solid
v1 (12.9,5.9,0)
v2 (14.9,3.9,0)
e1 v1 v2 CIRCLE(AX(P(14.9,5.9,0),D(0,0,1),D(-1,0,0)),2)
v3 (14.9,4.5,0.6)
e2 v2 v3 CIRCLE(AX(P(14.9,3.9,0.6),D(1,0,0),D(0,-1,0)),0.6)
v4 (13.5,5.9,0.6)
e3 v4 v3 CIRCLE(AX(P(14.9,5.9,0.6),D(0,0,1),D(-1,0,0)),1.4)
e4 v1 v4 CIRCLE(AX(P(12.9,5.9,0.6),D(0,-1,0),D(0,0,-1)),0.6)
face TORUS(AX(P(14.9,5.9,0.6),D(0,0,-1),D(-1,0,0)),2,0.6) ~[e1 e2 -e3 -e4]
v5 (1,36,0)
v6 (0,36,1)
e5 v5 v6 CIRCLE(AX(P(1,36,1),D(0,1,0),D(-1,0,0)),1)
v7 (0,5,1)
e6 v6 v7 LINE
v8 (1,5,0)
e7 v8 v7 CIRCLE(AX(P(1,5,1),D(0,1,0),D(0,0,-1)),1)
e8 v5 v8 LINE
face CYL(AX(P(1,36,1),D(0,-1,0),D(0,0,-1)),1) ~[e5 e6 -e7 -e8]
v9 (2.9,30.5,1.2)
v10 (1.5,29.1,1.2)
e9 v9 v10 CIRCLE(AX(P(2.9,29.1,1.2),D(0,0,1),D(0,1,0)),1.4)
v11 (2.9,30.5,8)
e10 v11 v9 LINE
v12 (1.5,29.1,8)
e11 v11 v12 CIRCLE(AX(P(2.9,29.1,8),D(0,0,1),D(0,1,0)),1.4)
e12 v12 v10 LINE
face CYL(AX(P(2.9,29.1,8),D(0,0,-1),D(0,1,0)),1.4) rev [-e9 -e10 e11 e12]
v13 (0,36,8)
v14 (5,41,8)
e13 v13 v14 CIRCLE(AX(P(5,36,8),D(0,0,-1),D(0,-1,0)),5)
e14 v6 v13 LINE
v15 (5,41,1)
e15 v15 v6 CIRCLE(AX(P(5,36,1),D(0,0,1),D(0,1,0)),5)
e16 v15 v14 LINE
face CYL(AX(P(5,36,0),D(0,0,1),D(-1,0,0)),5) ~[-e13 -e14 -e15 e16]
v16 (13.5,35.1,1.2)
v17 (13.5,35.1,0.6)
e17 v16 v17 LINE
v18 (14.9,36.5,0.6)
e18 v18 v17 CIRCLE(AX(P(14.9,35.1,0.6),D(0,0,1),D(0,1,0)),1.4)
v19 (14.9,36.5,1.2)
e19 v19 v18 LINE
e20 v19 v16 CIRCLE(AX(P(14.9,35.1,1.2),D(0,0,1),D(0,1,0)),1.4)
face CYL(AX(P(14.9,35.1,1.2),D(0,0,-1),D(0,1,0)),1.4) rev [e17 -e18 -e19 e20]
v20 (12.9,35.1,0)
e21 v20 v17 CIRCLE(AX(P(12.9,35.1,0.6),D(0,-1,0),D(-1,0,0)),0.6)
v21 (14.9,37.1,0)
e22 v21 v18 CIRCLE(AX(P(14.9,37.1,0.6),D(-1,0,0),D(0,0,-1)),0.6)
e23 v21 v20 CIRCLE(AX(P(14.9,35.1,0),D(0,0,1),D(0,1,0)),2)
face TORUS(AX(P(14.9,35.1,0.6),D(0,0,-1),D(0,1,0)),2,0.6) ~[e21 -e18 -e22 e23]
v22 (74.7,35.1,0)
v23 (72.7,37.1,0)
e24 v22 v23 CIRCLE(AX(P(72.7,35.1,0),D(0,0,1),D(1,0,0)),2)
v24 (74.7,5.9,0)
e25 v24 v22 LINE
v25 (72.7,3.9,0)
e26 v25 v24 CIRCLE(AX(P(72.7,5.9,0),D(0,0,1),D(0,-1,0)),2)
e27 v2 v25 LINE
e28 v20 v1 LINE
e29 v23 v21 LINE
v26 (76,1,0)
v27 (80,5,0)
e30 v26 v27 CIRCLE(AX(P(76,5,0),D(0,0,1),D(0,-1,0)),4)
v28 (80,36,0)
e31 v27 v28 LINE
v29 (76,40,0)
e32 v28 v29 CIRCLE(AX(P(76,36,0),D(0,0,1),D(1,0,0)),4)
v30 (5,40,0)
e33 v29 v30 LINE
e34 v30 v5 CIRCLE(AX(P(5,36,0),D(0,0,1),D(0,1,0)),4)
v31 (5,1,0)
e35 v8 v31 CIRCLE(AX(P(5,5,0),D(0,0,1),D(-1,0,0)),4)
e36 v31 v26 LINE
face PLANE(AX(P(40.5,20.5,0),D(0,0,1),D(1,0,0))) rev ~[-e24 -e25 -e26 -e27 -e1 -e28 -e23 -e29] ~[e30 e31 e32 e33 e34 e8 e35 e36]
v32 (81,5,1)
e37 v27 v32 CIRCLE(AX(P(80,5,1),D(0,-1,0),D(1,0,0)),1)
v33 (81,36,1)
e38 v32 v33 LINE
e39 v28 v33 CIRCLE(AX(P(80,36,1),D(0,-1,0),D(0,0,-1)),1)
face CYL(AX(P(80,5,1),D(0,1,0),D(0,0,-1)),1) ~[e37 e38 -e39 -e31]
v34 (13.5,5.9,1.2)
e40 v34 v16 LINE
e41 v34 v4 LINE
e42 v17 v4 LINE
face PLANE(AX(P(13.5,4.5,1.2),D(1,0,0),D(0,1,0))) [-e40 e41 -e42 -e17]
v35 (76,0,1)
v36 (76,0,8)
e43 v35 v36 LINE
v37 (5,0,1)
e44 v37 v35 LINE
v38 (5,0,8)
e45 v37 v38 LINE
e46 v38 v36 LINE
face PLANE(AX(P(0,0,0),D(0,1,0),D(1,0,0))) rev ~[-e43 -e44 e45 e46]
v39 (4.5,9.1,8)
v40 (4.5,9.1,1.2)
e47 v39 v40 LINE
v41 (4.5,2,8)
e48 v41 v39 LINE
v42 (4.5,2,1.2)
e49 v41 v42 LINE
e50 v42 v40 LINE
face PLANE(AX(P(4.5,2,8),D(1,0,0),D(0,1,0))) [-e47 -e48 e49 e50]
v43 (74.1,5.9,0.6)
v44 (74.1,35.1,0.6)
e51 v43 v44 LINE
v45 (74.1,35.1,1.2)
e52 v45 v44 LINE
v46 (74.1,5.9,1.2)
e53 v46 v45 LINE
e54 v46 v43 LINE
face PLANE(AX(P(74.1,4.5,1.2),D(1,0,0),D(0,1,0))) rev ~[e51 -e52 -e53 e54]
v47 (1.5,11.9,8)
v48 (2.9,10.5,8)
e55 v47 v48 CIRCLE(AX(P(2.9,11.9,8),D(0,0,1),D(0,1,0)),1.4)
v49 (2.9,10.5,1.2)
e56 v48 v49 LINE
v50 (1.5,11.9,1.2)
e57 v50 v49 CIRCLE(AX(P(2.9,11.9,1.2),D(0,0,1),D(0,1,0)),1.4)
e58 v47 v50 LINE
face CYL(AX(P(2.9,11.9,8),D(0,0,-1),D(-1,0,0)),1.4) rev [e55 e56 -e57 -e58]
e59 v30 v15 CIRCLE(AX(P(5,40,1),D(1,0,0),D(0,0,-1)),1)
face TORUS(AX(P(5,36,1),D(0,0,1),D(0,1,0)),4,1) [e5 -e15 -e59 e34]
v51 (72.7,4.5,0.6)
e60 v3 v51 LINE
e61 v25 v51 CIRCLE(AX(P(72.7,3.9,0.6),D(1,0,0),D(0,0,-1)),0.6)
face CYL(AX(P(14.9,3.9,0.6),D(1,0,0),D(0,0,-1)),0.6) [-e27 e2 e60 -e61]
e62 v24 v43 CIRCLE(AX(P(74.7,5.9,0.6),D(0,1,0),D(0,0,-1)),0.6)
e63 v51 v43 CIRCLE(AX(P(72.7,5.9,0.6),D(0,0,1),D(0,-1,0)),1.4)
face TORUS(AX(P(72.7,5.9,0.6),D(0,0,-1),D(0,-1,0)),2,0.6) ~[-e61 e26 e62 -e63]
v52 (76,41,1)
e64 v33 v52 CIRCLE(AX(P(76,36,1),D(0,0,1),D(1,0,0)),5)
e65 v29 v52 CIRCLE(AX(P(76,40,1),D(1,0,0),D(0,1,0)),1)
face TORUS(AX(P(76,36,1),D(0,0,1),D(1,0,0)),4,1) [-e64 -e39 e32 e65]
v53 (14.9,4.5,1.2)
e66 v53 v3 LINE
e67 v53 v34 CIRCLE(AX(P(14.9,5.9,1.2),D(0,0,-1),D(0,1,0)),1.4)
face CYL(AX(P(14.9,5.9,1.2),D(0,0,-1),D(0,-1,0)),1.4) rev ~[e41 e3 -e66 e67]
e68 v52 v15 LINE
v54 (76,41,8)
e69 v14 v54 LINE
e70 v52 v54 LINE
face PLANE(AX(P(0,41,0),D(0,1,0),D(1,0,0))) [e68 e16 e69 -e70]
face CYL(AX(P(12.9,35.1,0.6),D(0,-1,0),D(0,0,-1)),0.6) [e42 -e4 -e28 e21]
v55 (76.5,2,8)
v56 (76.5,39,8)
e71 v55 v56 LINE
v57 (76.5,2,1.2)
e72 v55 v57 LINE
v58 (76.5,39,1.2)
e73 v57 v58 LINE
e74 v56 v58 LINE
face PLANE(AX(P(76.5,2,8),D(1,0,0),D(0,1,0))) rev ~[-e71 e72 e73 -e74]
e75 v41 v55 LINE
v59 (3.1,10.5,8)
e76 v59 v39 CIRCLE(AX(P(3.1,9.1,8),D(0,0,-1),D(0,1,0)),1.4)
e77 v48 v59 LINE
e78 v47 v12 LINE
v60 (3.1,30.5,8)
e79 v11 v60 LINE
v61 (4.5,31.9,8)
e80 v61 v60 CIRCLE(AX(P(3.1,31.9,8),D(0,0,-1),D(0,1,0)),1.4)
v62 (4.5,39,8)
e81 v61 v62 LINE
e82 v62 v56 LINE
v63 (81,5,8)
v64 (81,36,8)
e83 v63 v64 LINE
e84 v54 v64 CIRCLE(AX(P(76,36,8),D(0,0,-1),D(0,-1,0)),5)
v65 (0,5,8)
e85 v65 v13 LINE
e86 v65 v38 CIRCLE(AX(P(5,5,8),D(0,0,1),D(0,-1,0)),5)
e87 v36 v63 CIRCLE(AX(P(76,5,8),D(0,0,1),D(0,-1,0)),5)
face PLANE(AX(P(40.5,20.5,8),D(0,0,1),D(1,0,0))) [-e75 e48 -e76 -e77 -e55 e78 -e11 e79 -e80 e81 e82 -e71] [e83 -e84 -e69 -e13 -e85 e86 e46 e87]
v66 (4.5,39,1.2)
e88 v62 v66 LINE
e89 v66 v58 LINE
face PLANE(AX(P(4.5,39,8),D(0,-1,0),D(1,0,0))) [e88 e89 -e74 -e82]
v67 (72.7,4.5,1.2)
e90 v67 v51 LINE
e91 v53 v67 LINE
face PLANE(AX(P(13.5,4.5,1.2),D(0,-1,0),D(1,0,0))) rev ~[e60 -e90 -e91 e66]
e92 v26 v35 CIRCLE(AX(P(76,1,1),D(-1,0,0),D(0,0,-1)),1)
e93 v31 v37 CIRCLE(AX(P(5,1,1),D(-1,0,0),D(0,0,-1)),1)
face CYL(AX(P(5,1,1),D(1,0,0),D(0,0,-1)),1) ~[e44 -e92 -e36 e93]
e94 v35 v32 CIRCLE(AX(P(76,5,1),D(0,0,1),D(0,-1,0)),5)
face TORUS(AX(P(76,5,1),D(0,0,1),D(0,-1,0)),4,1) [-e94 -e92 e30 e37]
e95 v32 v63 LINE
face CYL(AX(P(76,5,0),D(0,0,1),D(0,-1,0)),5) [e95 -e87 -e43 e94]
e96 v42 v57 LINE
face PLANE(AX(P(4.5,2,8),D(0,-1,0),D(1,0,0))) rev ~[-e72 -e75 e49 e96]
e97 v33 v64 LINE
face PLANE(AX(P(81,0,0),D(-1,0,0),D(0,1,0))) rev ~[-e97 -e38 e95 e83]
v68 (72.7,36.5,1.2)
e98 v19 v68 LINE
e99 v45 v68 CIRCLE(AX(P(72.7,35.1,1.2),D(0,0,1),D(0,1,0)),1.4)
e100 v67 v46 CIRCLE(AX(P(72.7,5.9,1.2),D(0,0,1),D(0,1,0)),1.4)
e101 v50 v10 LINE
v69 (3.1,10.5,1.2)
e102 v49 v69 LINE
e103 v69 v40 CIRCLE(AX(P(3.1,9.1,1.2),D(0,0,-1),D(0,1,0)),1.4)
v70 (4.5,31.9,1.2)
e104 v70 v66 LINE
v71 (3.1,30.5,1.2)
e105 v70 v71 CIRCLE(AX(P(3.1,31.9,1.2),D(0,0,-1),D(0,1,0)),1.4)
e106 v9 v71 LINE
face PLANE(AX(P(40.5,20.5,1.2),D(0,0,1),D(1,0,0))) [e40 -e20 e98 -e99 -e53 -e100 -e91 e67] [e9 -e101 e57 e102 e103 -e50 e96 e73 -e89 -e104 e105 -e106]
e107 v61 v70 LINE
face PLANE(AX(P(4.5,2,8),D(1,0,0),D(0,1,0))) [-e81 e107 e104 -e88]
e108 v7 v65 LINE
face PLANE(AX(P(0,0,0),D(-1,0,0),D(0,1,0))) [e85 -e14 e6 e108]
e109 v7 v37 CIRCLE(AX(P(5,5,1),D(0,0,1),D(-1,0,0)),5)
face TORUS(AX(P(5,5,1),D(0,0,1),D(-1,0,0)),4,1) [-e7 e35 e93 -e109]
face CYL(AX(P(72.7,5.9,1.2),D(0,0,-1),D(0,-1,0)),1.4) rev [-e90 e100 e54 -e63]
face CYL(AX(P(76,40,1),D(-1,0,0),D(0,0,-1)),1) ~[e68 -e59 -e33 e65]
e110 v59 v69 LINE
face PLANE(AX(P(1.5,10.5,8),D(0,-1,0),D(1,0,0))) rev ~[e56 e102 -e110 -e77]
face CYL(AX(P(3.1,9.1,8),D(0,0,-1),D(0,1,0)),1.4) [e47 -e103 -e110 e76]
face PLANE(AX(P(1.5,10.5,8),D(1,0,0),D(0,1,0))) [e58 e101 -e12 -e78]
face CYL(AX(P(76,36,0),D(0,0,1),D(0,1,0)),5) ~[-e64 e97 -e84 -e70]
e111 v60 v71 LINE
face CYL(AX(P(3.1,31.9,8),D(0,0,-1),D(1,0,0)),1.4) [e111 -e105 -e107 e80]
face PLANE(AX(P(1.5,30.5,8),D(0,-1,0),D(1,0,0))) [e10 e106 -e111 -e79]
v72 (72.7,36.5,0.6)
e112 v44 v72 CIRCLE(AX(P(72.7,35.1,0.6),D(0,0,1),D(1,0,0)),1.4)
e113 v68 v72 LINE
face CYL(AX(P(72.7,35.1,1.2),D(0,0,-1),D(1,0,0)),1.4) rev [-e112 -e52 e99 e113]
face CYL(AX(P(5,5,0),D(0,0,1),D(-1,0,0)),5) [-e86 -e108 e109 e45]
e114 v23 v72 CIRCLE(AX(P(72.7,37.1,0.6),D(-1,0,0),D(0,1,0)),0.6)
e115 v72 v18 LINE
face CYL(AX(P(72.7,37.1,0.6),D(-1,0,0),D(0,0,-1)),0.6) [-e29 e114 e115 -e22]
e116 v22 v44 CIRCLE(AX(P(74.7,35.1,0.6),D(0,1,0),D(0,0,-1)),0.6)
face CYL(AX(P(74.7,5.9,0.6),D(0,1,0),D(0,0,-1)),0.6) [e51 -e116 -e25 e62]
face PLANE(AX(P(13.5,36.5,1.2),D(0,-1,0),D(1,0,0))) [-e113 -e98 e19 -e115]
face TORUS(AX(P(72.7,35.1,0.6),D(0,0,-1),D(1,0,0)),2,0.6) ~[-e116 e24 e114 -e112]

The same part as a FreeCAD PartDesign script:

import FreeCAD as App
import Part
import Sketcher

V = App.Vector


def edges_at(feature, points):
    """Names of the edges that pass closest to the given points."""
    edges = feature.Shape.Edges
    near = lambda p: min(range(len(edges)), key=lambda i: edges[i].distToShape(Part.Vertex(*p))[0])
    return sorted({f"Edge{near(p) + 1}" for p in points})


def add_polygon(sketch, points):
    """Adds a closed chain of lines whose ends are joined by coincident constraints."""
    first, n = sketch.GeometryCount, len(points)
    for a, b in zip(points, points[1:] + points[:1]):
        sketch.addGeometry(Part.LineSegment(App.Vector(*a, 0), App.Vector(*b, 0)), False)
    for i in range(n):
        sketch.addConstraint(Sketcher.Constraint("Coincident", first + i, 2, first + (i + 1) % n, 1))

doc = App.newDocument("Part")
body = doc.addObject("PartDesign::Body", "Body")

# Sketch on XY plane
sketch1 = body.newObject("Sketcher::SketchObject", "Sketch")
sketch1.AttachmentSupport = (doc.getObject("XY_Plane"), [""])
sketch1.MapMode = "FlatFace"
add_polygon(sketch1, [(0, 41), (0, 0), (81, 0), (81, 41)])  # lines 0-3
sketch1.addConstraint([
    Sketcher.Constraint("Vertical", 0),
    Sketcher.Constraint("Horizontal", 1),
    Sketcher.Constraint("Vertical", 2),
    Sketcher.Constraint("Horizontal", 3),
    Sketcher.Constraint("Coincident", 0, 2, -1, 1),
    Sketcher.Constraint("DistanceX", 1, 1, 1, 2, 81.0),
    Sketcher.Constraint("DistanceY", 0, 2, 0, 1, 41.0),
])
pad1 = body.newObject("PartDesign::Pad", "Pad")
pad1.Profile = sketch1
pad1.Length = 8

# Sketch on XY plane
sketch2 = body.newObject("Sketcher::SketchObject", "Sketch001")
sketch2.AttachmentSupport = (doc.getObject("XY_Plane"), [""])
sketch2.MapMode = "FlatFace"
sketch2.AttachmentOffset = App.Placement(V(0, 0, 8), App.Rotation())
add_polygon(sketch2, [(4, 39), (4, 2), (76, 2), (76, 39)])  # lines 0-3
sketch2.addConstraint([
    Sketcher.Constraint("Vertical", 0),
    Sketcher.Constraint("Horizontal", 1),
    Sketcher.Constraint("Vertical", 2),
    Sketcher.Constraint("Horizontal", 3),
    Sketcher.Constraint("DistanceX", 1, 1, 1, 2, 72.0),
    Sketcher.Constraint("DistanceY", 0, 2, 0, 1, 37.0),
    Sketcher.Constraint("DistanceY", -1, 1, 0, 2, 2.0),
    Sketcher.Constraint("DistanceX", -1, 1, 0, 2, 4.5),
])
pocket1 = body.newObject("PartDesign::Pocket", "Pocket")
pocket1.Profile = sketch2
pocket1.Length = 6.8

# Sketch on XY plane
sketch3 = body.newObject("Sketcher::SketchObject", "Sketch002")
sketch3.AttachmentSupport = (doc.getObject("XY_Plane"), [""])
sketch3.MapMode = "FlatFace"
sketch3.AttachmentOffset = App.Placement(V(0, 0, 8), App.Rotation())
add_polygon(sketch3, [(1.5, 30.5), (1.5, 10.5), (4.5, 10.5), (4.5, 30.5)])  # lines 0-3
sketch3.addConstraint([
    Sketcher.Constraint("Vertical", 0),
    Sketcher.Constraint("Horizontal", 1),
    Sketcher.Constraint("Vertical", 2),
    Sketcher.Constraint("Horizontal", 3),
    Sketcher.Constraint("DistanceX", 1, 1, 1, 2, 3.0),
    Sketcher.Constraint("DistanceY", 0, 2, 0, 1, 20.0),
    Sketcher.Constraint("DistanceX", -1, 1, 0, 2, 1.5),
    Sketcher.Constraint("DistanceY", -1, 1, 0, 2, 10.5),
])
pocket2 = body.newObject("PartDesign::Pocket", "Pocket001")
pocket2.Profile = sketch3
pocket2.Length = 6.8

# Sketch on XY plane
sketch4 = body.newObject("Sketcher::SketchObject", "Sketch003")
sketch4.AttachmentSupport = (doc.getObject("XY_Plane"), [""])
sketch4.MapMode = "FlatFace"
sketch4.AttachmentOffset = App.Placement(V(0, 0, 1.2), App.Rotation())
add_polygon(sketch4, [(14, 36), (14, 4), (74, 4), (74, 36)])  # lines 0-3
sketch4.addConstraint([
    Sketcher.Constraint("Vertical", 0),
    Sketcher.Constraint("Horizontal", 1),
    Sketcher.Constraint("Vertical", 2),
    Sketcher.Constraint("Horizontal", 3),
    Sketcher.Constraint("DistanceY", 0, 2, 0, 1, 32.0),
    Sketcher.Constraint("DistanceX", 1, 1, 1, 2, 60.6),
    Sketcher.Constraint("DistanceX", -1, 1, 0, 2, 13.5),
    Sketcher.Constraint("DistanceY", -1, 1, 0, 2, 4.5),
])
pocket3 = body.newObject("PartDesign::Pocket", "Pocket002")
pocket3.Profile = sketch4
pocket3.Length = 6.4
doc.recompute()

fillet = body.newObject("PartDesign::Fillet", "Fillet")
fillet.Base = (pocket3, edges_at(pocket3, [
    (4.5, 30.5, 4.6),
    (4.5, 10.5, 4.6),
    (1.5, 10.5, 4.6),
    (1.5, 30.5, 4.6),
    (13.5, 4.5, 0.6),
    (13.5, 36.5, 0.6),
    (74.1, 36.5, 0.6),
    (74.1, 4.5, 0.6),
]))
fillet.Radius = 1.4
doc.recompute()

fillet2 = body.newObject("PartDesign::Fillet", "Fillet001")
fillet2.Base = (fillet, edges_at(fillet, [
    (0, 41, 4),
    (81, 41, 4),
    (81, 0, 4),
    (0, 0, 4),
]))
fillet2.Radius = 5
doc.recompute()

fillet3 = body.newObject("PartDesign::Fillet", "Fillet002")
fillet3.Base = (fillet2, edges_at(fillet2, [
    (74.1, 20.5, 0),
    (43.8, 4.5, 0),
    (13.5, 20.5, 0),
    (43.8, 36.5, 0),
    (73.69, 4.91, 0),
    (13.91, 4.91, 0),
    (13.91, 36.09, 0),
    (73.69, 36.09, 0),
]))
fillet3.Radius = 0.6
doc.recompute()

fillet4 = body.newObject("PartDesign::Fillet", "Fillet003")
fillet4.Base = (fillet3, edges_at(fillet3, [
    (40.5, 0, 0),
    (0, 20.5, 0),
    (40.5, 41, 0),
    (81, 20.5, 0),
    (1.464, 39.536, 0),
    (79.536, 39.536, 0),
    (79.536, 1.464, 0),
    (1.464, 1.464, 0),
]))
fillet4.Radius = 1

doc.recompute()
